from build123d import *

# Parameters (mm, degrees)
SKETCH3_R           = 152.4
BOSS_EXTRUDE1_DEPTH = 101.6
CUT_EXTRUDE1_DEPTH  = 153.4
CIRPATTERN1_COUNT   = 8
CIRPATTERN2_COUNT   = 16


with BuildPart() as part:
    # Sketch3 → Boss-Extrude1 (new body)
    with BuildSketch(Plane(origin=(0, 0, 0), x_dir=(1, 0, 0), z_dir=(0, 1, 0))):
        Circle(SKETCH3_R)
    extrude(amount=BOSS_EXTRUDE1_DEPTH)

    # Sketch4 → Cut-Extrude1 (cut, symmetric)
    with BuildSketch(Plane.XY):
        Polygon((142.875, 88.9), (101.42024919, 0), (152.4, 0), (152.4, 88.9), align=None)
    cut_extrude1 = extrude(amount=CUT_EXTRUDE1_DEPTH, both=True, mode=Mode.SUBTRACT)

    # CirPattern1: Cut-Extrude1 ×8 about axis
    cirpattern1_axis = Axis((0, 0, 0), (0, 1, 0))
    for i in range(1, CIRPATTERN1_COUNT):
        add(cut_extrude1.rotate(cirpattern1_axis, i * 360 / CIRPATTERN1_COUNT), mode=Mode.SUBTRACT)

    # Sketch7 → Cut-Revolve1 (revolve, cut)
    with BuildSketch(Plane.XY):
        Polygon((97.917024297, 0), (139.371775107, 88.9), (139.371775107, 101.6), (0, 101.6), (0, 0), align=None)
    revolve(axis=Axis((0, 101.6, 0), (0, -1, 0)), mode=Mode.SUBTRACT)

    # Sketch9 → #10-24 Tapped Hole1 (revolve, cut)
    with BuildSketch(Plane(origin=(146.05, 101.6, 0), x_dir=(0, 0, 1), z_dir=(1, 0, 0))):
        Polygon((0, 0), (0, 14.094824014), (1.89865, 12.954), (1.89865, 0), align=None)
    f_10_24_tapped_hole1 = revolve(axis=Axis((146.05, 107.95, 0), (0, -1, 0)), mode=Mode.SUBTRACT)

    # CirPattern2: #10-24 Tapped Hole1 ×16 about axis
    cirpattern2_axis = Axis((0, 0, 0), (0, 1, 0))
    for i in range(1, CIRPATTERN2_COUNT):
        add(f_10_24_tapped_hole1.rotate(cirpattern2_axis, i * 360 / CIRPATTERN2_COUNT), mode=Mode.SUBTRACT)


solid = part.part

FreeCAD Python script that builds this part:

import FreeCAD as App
import Part
import Sketcher
from FreeCAD import Vector
Q = App.Units.Quantity


def add_polygon(sketch, points):
    """Adds a closed chain of lines whose ends are joined by coincident constraints."""
    first, n = sketch.GeometryCount, len(points)
    for a, b in zip(points, points[1:] + points[:1]):
        sketch.addGeometry(Part.LineSegment(App.Vector(*a, 0), App.Vector(*b, 0)), False)
    for i in range(n):
        sketch.addConstraint(Sketcher.Constraint("Coincident", first + i, 2, first + (i + 1) % n, 1))

doc = App.newDocument("Part")
params = doc.addObject("Spreadsheet::Sheet", "Params")
for row, (alias, value) in enumerate([
    ("sketch1_diameter", "12 in"),
    ("pad1_length", "4 in"),
    ("sketch2_height", "3.5 in"),
    ("sketch2_width", "0.375 in"),
    ("pocket1_length", "306.8 mm"),
    ("sketch3_height", "4 in"),
    ("sketch3_height2", "0.5 in"),
    ("groove_angle", "360 deg"),
    ("sketch4_width", "0.51 in"),
    ("groove2_angle", "360 deg"),
], start=1):
    params.set(f"A{row}", alias)
    params.set(f"B{row}", "=" + value)
    params.setAlias(f"B{row}", alias)

body = doc.addObject("PartDesign::Body", "Body")

# Sketch on XZ plane
sketch1 = body.newObject("Sketcher::SketchObject", "Sketch")
sketch1.AttachmentSupport = (doc.getObject("XZ_Plane"), [""])
sketch1.MapMode = "FlatFace"
sketch1.addGeometry(Part.Circle(Vector(0, 0, 0), Vector(0, 0, 1), 152), False)
sketch1.addConstraint(Sketcher.Constraint("Coincident", 0, 3, -1, 1))
sketch1.addConstraint(Sketcher.Constraint("Diameter", 0, Q("12 in")))
sketch1.setExpression("Constraints[1]", "Params.sketch1_diameter")
pad1 = body.newObject("PartDesign::Pad", "Pad")
pad1.Profile = sketch1
pad1.setExpression("Length", "Params.pad1_length")
pad1.Reversed = True

# Sketch on XY plane
sketch2 = body.newObject("Sketcher::SketchObject", "Sketch001")
sketch2.AttachmentSupport = (doc.getObject("XY_Plane"), [""])
sketch2.MapMode = "FlatFace"
add_polygon(sketch2, [(143, 89), (101, 0), (152, 0), (152, 89)])  # lines 0-3
sketch2.addConstraint(Sketcher.Constraint("Horizontal", 1))
sketch2.addConstraint(Sketcher.Constraint("Vertical", 2))
sketch2.addConstraint(Sketcher.Constraint("Horizontal", 3))
sketch2.addConstraint(Sketcher.Constraint("PointOnObject", 0, 2, -1))
sketch2.addConstraint(Sketcher.Constraint("DistanceY", 2, 1, 2, 2, Q("3.5 in")))
sketch2.addConstraint(Sketcher.Constraint("DistanceX", -1, 1, 1, 2, Q("6 in")))
sketch2.addConstraint(Sketcher.Constraint("Angle", 0, Q("-115 deg")))
sketch2.addConstraint(Sketcher.Constraint("DistanceX", 3, 2, 3, 1, Q("0.375 in")))
sketch2.setExpression("Constraints[8]", "Params.sketch2_height")
sketch2.setExpression("Constraints[11]", "Params.sketch2_width")
pocket1 = body.newObject("PartDesign::Pocket", "Pocket")
pocket1.Profile = sketch2
pocket1.setExpression("Length", "Params.pocket1_length")
pocket1.Midplane = True
doc.recompute()

polarpattern = body.newObject("PartDesign::PolarPattern", "PolarPattern")
polarpattern.Originals = [pocket1]
polarpattern.Axis = (doc.getObject("Y_Axis"), [""])
polarpattern.Angle = 360
polarpattern.Occurrences = 8
body.Tip = polarpattern

# Sketch on XY plane
sketch3 = body.newObject("Sketcher::SketchObject", "Sketch002")
sketch3.AttachmentSupport = (doc.getObject("XY_Plane"), [""])
sketch3.MapMode = "FlatFace"
add_polygon(sketch3, [(98, 0), (139, 89), (139, 102), (0, 102), (0, 0)])  # lines 0-4
sketch3.addConstraint(Sketcher.Constraint("Vertical", 1))
sketch3.addConstraint(Sketcher.Constraint("Horizontal", 2))
sketch3.addConstraint(Sketcher.Constraint("Vertical", 3))
sketch3.addConstraint(Sketcher.Constraint("Horizontal", 4))
sketch3.addConstraint(Sketcher.Constraint("Coincident", 3, 2, -1, 1))
sketch3.addConstraint(Sketcher.Constraint("DistanceY", 3, 2, 3, 1, Q("4 in")))
sketch3.addConstraint(Sketcher.Constraint("DistanceY", 1, 1, 1, 2, Q("0.5 in")))
sketch3.addConstraint(Sketcher.Constraint("Angle", 0, Q("65 deg")))
sketch3.addConstraint(Sketcher.Constraint("DistanceX", 2, 2, 2, 1, 139.371775))
sketch3.setExpression("Constraints[10]", "Params.sketch3_height")
sketch3.setExpression("Constraints[11]", "Params.sketch3_height2")
groove = body.newObject("PartDesign::Groove", "Groove")
groove.Profile = sketch3
groove.ReferenceAxis = (sketch3, ["V_Axis"])
groove.setExpression("Angle", "Params.groove_angle")

# Sketch on YZ plane
sketch4 = body.newObject("Sketcher::SketchObject", "Sketch003")
sketch4.AttachmentSupport = (doc.getObject("YZ_Plane"), [""])
sketch4.MapMode = "FlatFace"
sketch4.AttachmentOffset = App.Placement(Vector(0, 0, 5.75 * 25.4), App.Rotation())
add_polygon(sketch4, [(87.5, 0), (101.6, 0), (101.6, 1.9), (88.6, 1.9)])  # lines 0-3
sketch4.addConstraint(Sketcher.Constraint("Horizontal", 0))
sketch4.addConstraint(Sketcher.Constraint("Vertical", 1))
sketch4.addConstraint(Sketcher.Constraint("Horizontal", 2))
sketch4.addConstraint(Sketcher.Constraint("PointOnObject", 0, 2, -1))
sketch4.addConstraint(Sketcher.Constraint("DistanceX", -1, 1, 0, 2, Q("4 in")))
sketch4.addConstraint(Sketcher.Constraint("Angle", 3, Q("-121 deg")))
sketch4.addConstraint(Sketcher.Constraint("DistanceX", 2, 2, 2, 1, Q("0.51 in")))
sketch4.addConstraint(Sketcher.Constraint("DistanceY", 1, 1, 1, 2, 1.89865))
sketch4.setExpression("Constraints[10]", "Params.sketch4_width")
groove2 = body.newObject("PartDesign::Groove", "Groove001")
groove2.Profile = sketch4
groove2.ReferenceAxis = (sketch4, ["H_Axis"])
groove2.setExpression("Angle", "Params.groove2_angle")
doc.recompute()

polarpattern2 = body.newObject("PartDesign::PolarPattern", "PolarPattern001")
polarpattern2.Originals = [groove2]
polarpattern2.Axis = (doc.getObject("Y_Axis"), [""])
polarpattern2.Angle = 360
polarpattern2.Occurrences = 16
body.Tip = polarpattern2

doc.recompute()
